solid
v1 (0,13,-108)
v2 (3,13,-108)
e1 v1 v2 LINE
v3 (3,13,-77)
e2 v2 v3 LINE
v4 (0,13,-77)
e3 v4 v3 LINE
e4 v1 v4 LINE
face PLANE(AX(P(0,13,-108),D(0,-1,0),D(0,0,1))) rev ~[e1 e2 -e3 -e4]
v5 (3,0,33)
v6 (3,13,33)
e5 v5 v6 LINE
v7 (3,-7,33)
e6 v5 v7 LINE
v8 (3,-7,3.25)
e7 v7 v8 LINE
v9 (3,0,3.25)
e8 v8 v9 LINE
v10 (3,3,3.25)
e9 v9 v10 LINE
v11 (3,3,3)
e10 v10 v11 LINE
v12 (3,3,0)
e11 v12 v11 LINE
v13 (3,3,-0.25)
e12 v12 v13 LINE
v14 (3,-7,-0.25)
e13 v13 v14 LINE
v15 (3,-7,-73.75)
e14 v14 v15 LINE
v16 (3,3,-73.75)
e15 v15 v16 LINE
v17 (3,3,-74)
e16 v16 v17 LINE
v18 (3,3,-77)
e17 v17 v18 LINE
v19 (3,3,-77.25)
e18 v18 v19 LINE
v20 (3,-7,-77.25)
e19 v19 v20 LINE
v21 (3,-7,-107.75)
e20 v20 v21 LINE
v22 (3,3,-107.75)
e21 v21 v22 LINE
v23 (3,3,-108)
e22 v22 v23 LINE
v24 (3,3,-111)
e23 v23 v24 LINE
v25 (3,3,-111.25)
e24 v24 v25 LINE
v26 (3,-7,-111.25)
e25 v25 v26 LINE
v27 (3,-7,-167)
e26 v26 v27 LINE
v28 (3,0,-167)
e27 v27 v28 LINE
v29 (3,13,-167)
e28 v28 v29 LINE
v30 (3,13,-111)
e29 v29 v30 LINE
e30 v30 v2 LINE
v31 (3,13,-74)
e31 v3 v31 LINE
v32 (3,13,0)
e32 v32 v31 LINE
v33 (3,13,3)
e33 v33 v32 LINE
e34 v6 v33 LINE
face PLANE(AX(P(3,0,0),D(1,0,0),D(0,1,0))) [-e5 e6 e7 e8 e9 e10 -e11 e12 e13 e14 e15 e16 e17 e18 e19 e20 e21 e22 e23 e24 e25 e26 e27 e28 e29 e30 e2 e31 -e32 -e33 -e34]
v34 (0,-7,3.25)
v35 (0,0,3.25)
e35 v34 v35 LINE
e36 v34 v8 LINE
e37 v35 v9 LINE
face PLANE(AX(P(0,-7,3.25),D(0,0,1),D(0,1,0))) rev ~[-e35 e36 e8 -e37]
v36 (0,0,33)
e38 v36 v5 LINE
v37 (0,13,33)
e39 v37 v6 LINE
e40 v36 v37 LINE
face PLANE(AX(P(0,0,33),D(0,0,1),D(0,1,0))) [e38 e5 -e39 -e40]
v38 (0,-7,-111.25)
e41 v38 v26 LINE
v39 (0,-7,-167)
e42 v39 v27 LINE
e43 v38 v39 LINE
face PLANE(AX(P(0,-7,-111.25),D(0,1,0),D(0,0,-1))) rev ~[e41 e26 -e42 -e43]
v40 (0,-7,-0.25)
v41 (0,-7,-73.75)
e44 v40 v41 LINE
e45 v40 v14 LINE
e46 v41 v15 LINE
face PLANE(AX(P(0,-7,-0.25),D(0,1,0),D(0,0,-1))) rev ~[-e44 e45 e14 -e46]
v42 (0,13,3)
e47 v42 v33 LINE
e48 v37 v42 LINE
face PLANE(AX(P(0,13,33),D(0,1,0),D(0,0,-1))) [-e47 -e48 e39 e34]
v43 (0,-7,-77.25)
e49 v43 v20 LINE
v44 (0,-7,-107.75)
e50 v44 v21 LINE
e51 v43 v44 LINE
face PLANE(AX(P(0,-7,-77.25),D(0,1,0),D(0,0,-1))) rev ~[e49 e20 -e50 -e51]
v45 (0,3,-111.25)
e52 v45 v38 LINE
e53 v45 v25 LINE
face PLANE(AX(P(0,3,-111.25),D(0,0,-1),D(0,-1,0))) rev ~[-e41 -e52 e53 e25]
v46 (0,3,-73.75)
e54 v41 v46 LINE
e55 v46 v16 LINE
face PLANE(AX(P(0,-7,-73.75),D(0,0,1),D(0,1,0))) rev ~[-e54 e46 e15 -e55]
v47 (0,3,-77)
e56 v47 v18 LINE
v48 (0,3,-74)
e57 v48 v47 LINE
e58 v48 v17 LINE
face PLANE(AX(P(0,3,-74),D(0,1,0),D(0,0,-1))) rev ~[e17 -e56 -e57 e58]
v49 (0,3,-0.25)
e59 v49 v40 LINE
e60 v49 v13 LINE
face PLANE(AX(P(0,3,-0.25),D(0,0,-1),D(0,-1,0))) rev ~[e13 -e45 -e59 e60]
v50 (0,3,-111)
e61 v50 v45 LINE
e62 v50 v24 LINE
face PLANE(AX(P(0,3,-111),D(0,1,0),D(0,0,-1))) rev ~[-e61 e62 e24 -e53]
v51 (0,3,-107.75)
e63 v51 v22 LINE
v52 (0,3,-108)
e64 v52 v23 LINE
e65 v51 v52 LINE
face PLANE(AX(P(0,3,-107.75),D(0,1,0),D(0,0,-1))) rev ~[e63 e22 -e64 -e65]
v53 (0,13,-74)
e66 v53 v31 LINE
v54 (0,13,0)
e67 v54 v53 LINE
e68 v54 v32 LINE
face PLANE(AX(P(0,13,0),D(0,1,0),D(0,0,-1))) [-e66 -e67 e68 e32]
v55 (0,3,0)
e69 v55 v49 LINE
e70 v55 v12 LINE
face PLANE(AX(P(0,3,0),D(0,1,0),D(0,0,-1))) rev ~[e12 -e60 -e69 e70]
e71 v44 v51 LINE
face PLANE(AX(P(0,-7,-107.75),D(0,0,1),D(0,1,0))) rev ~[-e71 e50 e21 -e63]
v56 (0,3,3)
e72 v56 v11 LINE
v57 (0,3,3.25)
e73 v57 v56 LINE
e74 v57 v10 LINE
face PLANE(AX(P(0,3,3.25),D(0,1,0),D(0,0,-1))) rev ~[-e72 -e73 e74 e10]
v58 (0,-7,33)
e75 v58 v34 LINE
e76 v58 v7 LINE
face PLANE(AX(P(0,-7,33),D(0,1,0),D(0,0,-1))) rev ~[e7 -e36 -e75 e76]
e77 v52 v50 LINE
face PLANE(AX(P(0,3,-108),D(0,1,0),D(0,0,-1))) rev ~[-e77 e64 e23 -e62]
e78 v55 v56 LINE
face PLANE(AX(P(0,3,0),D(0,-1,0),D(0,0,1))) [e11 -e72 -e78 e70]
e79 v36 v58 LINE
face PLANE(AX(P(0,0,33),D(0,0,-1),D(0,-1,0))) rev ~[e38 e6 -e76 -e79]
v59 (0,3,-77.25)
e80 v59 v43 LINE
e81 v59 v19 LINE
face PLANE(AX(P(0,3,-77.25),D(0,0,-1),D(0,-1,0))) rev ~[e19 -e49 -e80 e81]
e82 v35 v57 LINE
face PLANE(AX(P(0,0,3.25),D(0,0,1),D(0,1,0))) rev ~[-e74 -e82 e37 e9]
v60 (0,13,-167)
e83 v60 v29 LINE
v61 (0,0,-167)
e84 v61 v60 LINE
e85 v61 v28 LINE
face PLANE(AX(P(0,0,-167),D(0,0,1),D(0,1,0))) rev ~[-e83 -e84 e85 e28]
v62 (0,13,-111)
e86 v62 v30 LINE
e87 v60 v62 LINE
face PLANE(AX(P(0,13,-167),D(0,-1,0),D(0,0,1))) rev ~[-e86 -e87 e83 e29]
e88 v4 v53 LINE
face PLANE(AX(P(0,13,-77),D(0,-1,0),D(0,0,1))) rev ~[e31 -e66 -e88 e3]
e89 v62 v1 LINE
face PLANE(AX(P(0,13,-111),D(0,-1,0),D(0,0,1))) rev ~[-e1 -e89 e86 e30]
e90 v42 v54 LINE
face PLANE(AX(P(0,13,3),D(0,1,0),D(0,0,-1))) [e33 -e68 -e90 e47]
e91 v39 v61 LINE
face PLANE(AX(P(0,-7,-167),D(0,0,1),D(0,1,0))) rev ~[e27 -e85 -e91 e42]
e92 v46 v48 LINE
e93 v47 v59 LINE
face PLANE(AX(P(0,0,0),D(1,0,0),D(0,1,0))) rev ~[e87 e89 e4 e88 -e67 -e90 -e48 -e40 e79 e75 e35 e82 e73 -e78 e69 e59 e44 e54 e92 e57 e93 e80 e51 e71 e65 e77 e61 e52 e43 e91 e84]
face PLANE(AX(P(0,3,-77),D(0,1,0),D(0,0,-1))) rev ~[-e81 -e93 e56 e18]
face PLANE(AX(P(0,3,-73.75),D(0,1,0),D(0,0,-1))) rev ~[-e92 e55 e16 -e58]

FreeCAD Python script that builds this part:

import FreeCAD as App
import Part
import Sketcher

V = App.Vector


def add_polygon(sketch, points):
    """Adds a closed chain of lines whose ends are joined by coincident constraints."""
    first, n = sketch.GeometryCount, len(points)
    for a, b in zip(points, points[1:] + points[:1]):
        sketch.addGeometry(Part.LineSegment(App.Vector(*a, 0), App.Vector(*b, 0)), False)
    for i in range(n):
        sketch.addConstraint(Sketcher.Constraint("Coincident", first + i, 2, first + (i + 1) % n, 1))

doc = App.newDocument("Part")
body = doc.addObject("PartDesign::Body", "Body")

# Sketch on YZ plane
sketch1 = body.newObject("Sketcher::SketchObject", "Sketch")
sketch1.AttachmentSupport = (doc.getObject("YZ_Plane"), [""])
sketch1.MapMode = "FlatFace"
add_polygon(sketch1, [(13, -167), (13, 33), (-7, 33), (-7, 3.2), (3, 3.2), (3, -0.2), (-7, -0.2), (-7, -73.8), (3, -73.8), (3, -77.2), (-7, -77.2), (-7, -107.8), (3, -107.8), (3, -111.2), (-7, -111.2), (-7, -167)])  # lines 0-15
sketch1.addConstraint(Sketcher.Constraint("Vertical", 0))
sketch1.addConstraint(Sketcher.Constraint("Horizontal", 1))
sketch1.addConstraint(Sketcher.Constraint("Vertical", 2))
sketch1.addConstraint(Sketcher.Constraint("Horizontal", 3))
sketch1.addConstraint(Sketcher.Constraint("Vertical", 4))
sketch1.addConstraint(Sketcher.Constraint("Horizontal", 5))
sketch1.addConstraint(Sketcher.Constraint("Vertical", 6))
sketch1.addConstraint(Sketcher.Constraint("Horizontal", 7))
sketch1.addConstraint(Sketcher.Constraint("Vertical", 8))
sketch1.addConstraint(Sketcher.Constraint("Horizontal", 9))
sketch1.addConstraint(Sketcher.Constraint("Vertical", 10))
sketch1.addConstraint(Sketcher.Constraint("Horizontal", 11))
sketch1.addConstraint(Sketcher.Constraint("Vertical", 12))
sketch1.addConstraint(Sketcher.Constraint("Horizontal", 13))
sketch1.addConstraint(Sketcher.Constraint("Vertical", 14))
sketch1.addConstraint(Sketcher.Constraint("Horizontal", 15))
sketch1.addConstraint(Sketcher.Constraint("Vertical", 2, 2, 5, 2))
sketch1.addConstraint(Sketcher.Constraint("Vertical", 4, 2, 7, 2))
sketch1.addConstraint(Sketcher.Constraint("Vertical", 6, 2, 9, 2))
sketch1.addConstraint(Sketcher.Constraint("Vertical", 8, 2, 11, 2))
sketch1.addConstraint(Sketcher.Constraint("Vertical", 10, 2, 13, 2))
sketch1.addConstraint(Sketcher.Constraint("Equal", 4, 8))
sketch1.addConstraint(Sketcher.Constraint("Equal", 8, 12))
sketch1.addConstraint(Sketcher.Constraint("DistanceX", 3, 1, 3, 2, 10.0))
sketch1.addConstraint(Sketcher.Constraint("DistanceY", 6, 2, 6, 1, 73.5))
sketch1.addConstraint(Sketcher.Constraint("DistanceY", 10, 2, 10, 1, 30.5))
sketch1.addConstraint(Sketcher.Constraint("DistanceX", -1, 1, 0, 2, 13.0))
sketch1.addConstraint(Sketcher.Constraint("DistanceX", 1, 2, -1, 1, 7.0))
sketch1.addConstraint(Sketcher.Constraint("DistanceY", 2, 2, 2, 1, 29.75))
sketch1.addConstraint(Sketcher.Constraint("DistanceY", 14, 2, 14, 1, 55.75))
sketch1.addConstraint(Sketcher.Constraint("DistanceY", 0, 1, 0, 2, 200.0))
sketch1.addConstraint(Sketcher.Constraint("DistanceY", 4, 2, -1, 1, 0.25))
pad1 = body.newObject("PartDesign::Pad", "Pad")
pad1.Profile = sketch1
pad1.Length = 3

doc.recompute()
